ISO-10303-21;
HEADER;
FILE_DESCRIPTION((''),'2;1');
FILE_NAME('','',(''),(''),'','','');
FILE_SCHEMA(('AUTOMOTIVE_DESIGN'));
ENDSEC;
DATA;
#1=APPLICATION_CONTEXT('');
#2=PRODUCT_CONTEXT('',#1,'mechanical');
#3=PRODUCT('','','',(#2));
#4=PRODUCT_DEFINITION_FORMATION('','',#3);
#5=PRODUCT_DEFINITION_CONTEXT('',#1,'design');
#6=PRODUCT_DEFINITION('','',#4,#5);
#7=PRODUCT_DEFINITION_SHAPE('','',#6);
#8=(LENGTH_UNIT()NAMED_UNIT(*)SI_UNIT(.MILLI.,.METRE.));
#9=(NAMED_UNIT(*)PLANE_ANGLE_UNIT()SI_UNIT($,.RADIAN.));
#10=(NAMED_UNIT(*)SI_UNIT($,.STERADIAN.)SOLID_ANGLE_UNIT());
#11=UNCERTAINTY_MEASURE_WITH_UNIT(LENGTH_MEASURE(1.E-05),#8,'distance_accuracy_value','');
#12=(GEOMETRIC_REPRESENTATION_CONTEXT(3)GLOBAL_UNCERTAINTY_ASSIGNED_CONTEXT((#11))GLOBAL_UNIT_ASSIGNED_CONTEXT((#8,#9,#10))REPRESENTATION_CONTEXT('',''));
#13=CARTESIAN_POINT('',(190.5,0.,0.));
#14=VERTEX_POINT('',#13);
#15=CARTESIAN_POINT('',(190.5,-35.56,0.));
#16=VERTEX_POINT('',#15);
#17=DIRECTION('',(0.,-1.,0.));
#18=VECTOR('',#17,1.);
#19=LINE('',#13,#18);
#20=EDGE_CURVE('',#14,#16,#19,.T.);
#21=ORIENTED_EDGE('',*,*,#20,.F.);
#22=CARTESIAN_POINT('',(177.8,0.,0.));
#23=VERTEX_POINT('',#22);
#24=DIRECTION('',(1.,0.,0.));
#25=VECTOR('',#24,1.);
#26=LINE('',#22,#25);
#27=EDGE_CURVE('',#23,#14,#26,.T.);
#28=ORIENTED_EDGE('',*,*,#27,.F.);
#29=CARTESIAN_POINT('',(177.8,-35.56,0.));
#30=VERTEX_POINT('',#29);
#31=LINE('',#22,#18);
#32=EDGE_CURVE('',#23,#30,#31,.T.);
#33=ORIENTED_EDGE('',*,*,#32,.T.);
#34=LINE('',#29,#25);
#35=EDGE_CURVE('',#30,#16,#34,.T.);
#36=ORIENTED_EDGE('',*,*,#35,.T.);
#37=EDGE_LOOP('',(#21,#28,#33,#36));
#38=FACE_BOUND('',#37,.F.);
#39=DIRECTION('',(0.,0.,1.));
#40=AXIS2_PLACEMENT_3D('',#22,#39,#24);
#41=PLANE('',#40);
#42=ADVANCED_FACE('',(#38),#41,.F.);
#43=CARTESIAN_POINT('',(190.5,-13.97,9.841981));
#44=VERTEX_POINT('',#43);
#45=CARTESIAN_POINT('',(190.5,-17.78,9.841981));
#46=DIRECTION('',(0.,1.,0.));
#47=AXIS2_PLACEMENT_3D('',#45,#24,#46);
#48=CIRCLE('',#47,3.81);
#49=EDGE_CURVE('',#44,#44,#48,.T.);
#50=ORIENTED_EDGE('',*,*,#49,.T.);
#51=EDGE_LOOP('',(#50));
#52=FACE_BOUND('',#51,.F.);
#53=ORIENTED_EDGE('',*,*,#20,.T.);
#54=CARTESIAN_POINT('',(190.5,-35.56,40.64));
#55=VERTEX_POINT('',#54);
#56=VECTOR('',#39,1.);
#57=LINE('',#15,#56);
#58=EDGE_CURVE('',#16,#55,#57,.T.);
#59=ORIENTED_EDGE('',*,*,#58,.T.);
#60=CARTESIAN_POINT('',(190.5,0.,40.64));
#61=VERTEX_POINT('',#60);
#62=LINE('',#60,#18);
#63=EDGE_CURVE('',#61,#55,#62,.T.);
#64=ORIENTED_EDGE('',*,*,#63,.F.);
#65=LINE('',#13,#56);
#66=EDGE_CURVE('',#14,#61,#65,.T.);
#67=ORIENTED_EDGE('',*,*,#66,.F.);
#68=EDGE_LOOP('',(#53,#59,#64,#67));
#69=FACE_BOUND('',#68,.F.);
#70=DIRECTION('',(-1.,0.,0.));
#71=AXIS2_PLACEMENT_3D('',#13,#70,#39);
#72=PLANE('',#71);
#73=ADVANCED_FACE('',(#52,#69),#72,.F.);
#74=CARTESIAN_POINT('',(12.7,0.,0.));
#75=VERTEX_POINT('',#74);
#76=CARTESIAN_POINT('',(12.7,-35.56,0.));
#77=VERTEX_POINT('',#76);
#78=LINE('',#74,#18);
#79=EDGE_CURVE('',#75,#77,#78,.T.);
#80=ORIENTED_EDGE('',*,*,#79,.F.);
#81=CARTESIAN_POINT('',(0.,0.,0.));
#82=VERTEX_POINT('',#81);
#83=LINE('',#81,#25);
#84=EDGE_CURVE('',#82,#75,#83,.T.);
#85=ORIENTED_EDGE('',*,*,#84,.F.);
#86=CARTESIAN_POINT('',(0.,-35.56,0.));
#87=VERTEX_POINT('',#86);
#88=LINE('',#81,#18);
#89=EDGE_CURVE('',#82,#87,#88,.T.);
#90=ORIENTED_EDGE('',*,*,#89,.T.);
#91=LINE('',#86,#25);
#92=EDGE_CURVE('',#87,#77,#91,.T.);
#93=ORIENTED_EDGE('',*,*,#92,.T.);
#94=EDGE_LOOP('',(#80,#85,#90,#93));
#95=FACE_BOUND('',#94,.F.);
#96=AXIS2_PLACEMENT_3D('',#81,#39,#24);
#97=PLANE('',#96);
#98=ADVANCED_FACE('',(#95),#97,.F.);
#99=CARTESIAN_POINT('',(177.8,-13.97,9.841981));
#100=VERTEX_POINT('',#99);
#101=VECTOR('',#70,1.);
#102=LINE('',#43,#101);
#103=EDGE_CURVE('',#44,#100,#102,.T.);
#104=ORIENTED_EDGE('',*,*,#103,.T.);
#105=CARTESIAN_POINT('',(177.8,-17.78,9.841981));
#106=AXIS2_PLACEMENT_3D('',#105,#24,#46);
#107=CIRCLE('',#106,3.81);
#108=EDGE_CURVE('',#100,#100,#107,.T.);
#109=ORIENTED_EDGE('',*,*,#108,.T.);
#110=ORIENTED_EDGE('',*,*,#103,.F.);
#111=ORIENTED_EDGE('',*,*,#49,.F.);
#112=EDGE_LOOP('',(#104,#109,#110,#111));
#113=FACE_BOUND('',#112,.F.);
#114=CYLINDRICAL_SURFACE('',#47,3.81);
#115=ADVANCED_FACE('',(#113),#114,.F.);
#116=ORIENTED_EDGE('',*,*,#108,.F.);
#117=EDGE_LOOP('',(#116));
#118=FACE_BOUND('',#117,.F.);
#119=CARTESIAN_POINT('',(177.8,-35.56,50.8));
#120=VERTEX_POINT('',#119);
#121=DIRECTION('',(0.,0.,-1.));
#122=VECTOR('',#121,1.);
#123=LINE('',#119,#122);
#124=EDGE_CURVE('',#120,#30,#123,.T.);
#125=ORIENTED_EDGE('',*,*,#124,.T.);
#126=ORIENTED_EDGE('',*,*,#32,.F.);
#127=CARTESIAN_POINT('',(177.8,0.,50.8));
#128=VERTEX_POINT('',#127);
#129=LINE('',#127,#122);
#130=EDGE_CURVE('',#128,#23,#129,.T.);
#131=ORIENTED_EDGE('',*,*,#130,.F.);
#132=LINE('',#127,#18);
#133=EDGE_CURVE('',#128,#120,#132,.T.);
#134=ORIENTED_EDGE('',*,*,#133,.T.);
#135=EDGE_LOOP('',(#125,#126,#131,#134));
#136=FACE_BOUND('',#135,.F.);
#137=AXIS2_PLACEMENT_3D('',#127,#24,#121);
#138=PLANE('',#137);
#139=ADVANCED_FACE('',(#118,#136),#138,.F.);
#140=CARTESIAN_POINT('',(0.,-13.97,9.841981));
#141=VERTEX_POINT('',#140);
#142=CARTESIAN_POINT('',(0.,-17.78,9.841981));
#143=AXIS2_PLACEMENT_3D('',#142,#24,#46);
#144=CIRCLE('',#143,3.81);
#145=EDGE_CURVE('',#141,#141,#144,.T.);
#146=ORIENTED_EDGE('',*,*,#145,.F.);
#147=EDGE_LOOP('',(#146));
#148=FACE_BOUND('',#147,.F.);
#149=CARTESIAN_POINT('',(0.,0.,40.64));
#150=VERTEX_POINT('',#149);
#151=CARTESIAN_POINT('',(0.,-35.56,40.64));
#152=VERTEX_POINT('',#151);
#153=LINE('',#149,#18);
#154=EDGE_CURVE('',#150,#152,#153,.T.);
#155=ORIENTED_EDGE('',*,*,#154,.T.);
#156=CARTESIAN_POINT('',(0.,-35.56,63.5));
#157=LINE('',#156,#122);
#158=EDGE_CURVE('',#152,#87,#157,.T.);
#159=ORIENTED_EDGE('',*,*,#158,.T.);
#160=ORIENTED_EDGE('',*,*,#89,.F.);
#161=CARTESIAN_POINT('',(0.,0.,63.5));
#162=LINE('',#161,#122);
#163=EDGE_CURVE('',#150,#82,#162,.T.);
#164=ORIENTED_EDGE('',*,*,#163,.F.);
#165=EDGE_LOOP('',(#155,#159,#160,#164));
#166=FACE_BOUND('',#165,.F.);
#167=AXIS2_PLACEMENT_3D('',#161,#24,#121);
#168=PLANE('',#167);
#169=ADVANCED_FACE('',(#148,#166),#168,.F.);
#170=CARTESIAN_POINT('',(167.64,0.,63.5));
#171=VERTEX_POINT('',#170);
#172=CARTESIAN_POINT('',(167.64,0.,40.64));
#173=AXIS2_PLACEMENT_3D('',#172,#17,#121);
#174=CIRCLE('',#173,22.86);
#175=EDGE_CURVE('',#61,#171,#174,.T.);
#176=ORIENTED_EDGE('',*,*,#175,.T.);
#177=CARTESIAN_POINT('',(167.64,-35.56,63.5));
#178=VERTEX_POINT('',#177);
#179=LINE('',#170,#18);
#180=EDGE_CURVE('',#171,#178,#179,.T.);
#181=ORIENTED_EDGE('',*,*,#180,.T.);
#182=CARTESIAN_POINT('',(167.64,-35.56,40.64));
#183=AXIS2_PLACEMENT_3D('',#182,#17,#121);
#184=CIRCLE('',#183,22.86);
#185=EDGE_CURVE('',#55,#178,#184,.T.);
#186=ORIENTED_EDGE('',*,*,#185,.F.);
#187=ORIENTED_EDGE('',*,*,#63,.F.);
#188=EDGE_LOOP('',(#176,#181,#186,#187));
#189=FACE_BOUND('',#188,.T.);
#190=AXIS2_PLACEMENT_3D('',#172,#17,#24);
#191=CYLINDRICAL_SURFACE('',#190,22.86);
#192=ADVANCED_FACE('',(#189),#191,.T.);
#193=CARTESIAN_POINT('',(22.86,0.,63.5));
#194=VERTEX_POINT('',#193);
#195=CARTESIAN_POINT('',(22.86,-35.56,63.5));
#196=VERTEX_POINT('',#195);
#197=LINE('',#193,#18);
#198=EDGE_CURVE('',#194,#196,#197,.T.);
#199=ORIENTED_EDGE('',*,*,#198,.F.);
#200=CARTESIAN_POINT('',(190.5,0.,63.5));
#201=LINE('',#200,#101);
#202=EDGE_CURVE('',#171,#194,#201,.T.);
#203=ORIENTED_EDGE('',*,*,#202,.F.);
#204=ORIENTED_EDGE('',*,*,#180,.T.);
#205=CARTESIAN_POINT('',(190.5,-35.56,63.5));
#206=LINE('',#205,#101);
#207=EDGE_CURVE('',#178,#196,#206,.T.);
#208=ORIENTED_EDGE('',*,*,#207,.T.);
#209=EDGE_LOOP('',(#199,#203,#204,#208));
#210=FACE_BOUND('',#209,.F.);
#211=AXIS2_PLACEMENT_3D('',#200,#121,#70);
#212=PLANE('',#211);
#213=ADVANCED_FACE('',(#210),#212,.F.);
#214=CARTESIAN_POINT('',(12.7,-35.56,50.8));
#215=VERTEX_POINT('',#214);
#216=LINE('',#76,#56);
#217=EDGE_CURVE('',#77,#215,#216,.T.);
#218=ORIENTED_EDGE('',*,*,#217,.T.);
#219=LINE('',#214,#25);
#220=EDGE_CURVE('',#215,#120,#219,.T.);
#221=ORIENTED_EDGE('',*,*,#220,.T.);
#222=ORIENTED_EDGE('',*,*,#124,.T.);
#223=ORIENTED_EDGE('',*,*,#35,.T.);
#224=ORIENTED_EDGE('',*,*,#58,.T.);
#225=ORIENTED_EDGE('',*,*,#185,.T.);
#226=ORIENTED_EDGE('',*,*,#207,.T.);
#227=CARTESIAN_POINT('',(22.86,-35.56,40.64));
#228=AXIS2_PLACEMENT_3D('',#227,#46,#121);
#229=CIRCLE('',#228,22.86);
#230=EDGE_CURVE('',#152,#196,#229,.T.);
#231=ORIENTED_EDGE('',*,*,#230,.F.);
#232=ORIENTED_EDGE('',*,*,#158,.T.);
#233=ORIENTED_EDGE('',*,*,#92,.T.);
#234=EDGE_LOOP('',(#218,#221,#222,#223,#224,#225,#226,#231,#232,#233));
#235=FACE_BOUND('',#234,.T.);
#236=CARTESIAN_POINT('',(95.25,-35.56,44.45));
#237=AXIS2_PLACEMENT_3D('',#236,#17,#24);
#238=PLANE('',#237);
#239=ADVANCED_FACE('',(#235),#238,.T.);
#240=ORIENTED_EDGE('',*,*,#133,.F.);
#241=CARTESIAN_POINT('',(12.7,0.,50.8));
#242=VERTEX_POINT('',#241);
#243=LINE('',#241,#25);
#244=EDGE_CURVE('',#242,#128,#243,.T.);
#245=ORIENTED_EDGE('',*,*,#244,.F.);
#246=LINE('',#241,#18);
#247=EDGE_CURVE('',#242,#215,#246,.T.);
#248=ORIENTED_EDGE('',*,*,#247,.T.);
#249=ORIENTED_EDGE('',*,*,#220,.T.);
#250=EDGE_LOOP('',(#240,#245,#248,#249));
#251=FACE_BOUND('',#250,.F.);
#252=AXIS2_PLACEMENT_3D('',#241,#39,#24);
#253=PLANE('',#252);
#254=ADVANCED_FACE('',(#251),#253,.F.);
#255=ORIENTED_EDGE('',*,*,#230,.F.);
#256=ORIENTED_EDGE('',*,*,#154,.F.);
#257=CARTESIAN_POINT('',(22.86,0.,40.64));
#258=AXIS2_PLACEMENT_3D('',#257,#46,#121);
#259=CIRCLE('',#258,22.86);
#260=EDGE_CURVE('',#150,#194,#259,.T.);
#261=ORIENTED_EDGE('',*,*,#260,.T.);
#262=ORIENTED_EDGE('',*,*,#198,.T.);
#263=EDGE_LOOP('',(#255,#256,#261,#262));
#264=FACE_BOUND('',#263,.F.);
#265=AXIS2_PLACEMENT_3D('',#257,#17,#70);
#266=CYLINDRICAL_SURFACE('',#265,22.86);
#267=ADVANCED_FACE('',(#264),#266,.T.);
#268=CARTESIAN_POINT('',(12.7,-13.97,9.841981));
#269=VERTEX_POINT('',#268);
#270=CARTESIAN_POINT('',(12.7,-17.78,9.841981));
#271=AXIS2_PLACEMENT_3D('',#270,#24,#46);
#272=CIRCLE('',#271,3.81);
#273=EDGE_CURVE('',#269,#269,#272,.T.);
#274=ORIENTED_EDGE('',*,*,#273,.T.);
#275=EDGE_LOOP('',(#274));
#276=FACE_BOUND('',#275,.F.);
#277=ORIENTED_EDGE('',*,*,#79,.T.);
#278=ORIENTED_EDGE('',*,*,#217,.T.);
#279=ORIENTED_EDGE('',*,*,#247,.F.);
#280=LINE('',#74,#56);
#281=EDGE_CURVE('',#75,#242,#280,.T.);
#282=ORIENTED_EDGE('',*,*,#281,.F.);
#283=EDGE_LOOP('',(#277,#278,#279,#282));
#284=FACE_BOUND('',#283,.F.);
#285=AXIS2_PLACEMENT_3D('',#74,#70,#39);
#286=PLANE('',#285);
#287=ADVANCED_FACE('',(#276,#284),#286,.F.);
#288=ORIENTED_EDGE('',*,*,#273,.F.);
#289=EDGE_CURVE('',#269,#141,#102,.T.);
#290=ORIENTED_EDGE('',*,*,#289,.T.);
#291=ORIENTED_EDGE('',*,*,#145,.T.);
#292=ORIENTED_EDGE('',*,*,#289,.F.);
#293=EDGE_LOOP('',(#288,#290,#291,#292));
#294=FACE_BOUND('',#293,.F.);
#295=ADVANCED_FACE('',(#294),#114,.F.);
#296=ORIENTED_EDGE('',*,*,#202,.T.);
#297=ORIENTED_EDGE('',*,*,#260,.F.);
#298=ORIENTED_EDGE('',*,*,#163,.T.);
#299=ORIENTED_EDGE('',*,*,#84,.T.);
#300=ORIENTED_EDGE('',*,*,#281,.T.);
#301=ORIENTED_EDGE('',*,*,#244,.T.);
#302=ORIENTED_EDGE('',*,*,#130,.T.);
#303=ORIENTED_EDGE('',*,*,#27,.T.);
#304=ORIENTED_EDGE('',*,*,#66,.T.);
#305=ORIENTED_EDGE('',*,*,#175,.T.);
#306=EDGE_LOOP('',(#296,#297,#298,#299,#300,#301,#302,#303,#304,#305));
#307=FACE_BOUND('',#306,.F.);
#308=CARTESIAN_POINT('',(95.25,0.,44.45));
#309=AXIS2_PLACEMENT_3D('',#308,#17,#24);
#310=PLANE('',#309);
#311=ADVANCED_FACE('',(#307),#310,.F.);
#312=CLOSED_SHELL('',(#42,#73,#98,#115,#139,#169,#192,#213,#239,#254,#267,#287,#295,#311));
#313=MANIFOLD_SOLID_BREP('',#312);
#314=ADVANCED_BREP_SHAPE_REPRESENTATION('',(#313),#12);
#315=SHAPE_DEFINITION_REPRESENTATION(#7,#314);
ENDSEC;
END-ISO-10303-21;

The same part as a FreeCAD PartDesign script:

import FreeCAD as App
import Part
import Sketcher

V = App.Vector
Q = App.Units.Quantity


def edges_at(feature, points):
    """Names of the edges that pass closest to the given points."""
    edges = feature.Shape.Edges
    near = lambda p: min(range(len(edges)), key=lambda i: edges[i].distToShape(Part.Vertex(*p))[0])
    return sorted({f"Edge{near(p) + 1}" for p in points})


def add_polygon(sketch, points):
    """Adds a closed chain of lines whose ends are joined by coincident constraints."""
    first, n = sketch.GeometryCount, len(points)
    for a, b in zip(points, points[1:] + points[:1]):
        sketch.addGeometry(Part.LineSegment(App.Vector(*a, 0), App.Vector(*b, 0)), False)
    for i in range(n):
        sketch.addConstraint(Sketcher.Constraint("Coincident", first + i, 2, first + (i + 1) % n, 1))

doc = App.newDocument("Part")
body = doc.addObject("PartDesign::Body", "Body")

# Sketch on XZ plane
sketch1 = doc.addObject("Sketcher::SketchObject", "Sketch")
body.addObject(sketch1)
sketch1.AttachmentSupport = (doc.XZ_Plane, [""])
sketch1.MapMode = "FlatFace"
add_polygon(sketch1, [(0, 64), (0, 0), (13, 0), (13, 51), (178, 51), (178, 0), (190, 0), (190, 64)])  # lines 0-7
sketch1.addConstraint([
    Sketcher.Constraint("Vertical", 0),
    Sketcher.Constraint("Horizontal", 1),
    Sketcher.Constraint("Vertical", 2),
    Sketcher.Constraint("Horizontal", 3),
    Sketcher.Constraint("Vertical", 4),
    Sketcher.Constraint("Horizontal", 5),
    Sketcher.Constraint("Vertical", 6),
    Sketcher.Constraint("Horizontal", 7),
    Sketcher.Constraint("Coincident", 0, 2, -1, 1),
    Sketcher.Constraint("PointOnObject", 4, 2, -1),
    Sketcher.Constraint("Equal", 1, 5),
    Sketcher.Constraint("DistanceY", 2, 1, 2, 2, Q("2 in")),
    Sketcher.Constraint("DistanceX", 1, 1, 1, 2, Q("0.5 in")),
    Sketcher.Constraint("DistanceX", 3, 1, 3, 2, Q("6.5 in")),
    Sketcher.Constraint("DistanceY", 0, 2, 0, 1, Q("2.5 in")),
])
pad1 = doc.addObject("PartDesign::Pad", "Pad")
body.addObject(pad1)
pad1.Profile = sketch1
pad1.Length = Q("1.4 in")
doc.recompute()

fillet = doc.addObject("PartDesign::Fillet", "Fillet")
body.addObject(fillet)
fillet.Base = (pad1, edges_at(pad1, [(0, -17.78, 63.5), (190.5, -17.78, 63.5)]))
fillet.Radius = Q("0.9 in")

# Sketch on YZ plane
sketch2 = doc.addObject("Sketcher::SketchObject", "Sketch001")
body.addObject(sketch2)
sketch2.AttachmentSupport = (doc.YZ_Plane, [""])
sketch2.MapMode = "FlatFace"
sketch2.AttachmentOffset = App.Placement(V(0, 0, 7.5 * 25.4), App.Rotation())
sketch2.addGeometry(Part.Circle(V(-17.8, 9.8, 0), V(0, 0, 1), 3.8), False)
sketch2.addConstraint([
    Sketcher.Constraint("Diameter", 0, Q("0.3 in")),
    Sketcher.Constraint("DistanceX", 0, 3, -1, 1, Q("0.7 in")),
    Sketcher.Constraint("DistanceY", -1, 1, 0, 3, 9.841981),
])
pocket1 = doc.addObject("PartDesign::Pocket", "Pocket")
body.addObject(pocket1)
pocket1.Profile = sketch2
pocket1.Type = "ThroughAll"

doc.recompute()
